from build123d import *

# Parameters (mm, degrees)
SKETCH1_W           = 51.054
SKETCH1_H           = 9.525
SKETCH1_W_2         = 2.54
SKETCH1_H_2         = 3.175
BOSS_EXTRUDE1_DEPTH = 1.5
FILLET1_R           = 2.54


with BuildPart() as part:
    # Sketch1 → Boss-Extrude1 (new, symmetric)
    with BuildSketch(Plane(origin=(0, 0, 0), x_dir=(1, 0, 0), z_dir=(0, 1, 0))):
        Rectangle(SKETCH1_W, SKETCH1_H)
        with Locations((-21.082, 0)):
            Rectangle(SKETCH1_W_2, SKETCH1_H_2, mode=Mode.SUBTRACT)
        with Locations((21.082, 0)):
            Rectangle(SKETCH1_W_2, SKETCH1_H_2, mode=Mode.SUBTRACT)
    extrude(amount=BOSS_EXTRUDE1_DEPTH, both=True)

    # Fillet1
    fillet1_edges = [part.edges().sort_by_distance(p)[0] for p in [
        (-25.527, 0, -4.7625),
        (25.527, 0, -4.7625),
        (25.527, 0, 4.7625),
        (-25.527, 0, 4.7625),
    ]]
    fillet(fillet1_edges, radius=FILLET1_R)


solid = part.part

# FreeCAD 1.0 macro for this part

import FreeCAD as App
import Part
import Sketcher

V = App.Vector
Q = App.Units.Quantity


def edges_at(feature, points):
    """Names of the edges that pass closest to the given points."""
    edges = feature.Shape.Edges
    near = lambda p: min(range(len(edges)), key=lambda i: edges[i].distToShape(Part.Vertex(*p))[0])
    return sorted({f"Edge{near(p) + 1}" for p in points})


def add_polygon(sketch, points):
    """Adds a closed chain of lines whose ends are joined by coincident constraints."""
    first, n = sketch.GeometryCount, len(points)
    for a, b in zip(points, points[1:] + points[:1]):
        sketch.addGeometry(Part.LineSegment(App.Vector(*a, 0), App.Vector(*b, 0)), False)
    for i in range(n):
        sketch.addConstraint(Sketcher.Constraint("Coincident", first + i, 2, first + (i + 1) % n, 1))

doc = App.newDocument("Part")
body = doc.addObject("PartDesign::Body", "Body")

# Sketch on XZ plane
sketch1 = doc.addObject("Sketcher::SketchObject", "Sketch")
body.addObject(sketch1)
sketch1.AttachmentSupport = (doc.XZ_Plane, [""])
sketch1.MapMode = "FlatFace"
add_polygon(sketch1, [(-25.5, -4.8), (-25.5, 4.8), (25.5, 4.8), (25.5, -4.8)])  # lines 0-3
add_polygon(sketch1, [(-19.8, 1.6), (-22.4, 1.6), (-22.4, -1.6), (-19.8, -1.6)])  # lines 4-7
add_polygon(sketch1, [(22.4, 1.6), (19.8, 1.6), (19.8, -1.6), (22.4, -1.6)])  # lines 8-11
sketch1.addConstraint([
    Sketcher.Constraint("Vertical", 0),
    Sketcher.Constraint("Horizontal", 1),
    Sketcher.Constraint("Vertical", 2),
    Sketcher.Constraint("Horizontal", 3),
    Sketcher.Constraint("Horizontal", 4),
    Sketcher.Constraint("Vertical", 5),
    Sketcher.Constraint("Horizontal", 6),
    Sketcher.Constraint("Vertical", 7),
    Sketcher.Constraint("Horizontal", 8),
    Sketcher.Constraint("Vertical", 9),
    Sketcher.Constraint("Horizontal", 10),
    Sketcher.Constraint("Vertical", 11),
    Sketcher.Constraint("Symmetric", 0, 2, 2, 2, -1, 1),
    Sketcher.Constraint("Symmetric", 6, 2, 8, 2, -1, 1),
    Sketcher.Constraint("Symmetric", 4, 2, 10, 2, -1, 1),
    Sketcher.Constraint("Horizontal", 7, 2, 8, 2),
    Sketcher.Constraint("DistanceX", 4, 2, 4, 1, Q("0.1 in")),
    Sketcher.Constraint("DistanceX", 1, 1, 1, 2, Q("2.01 in")),
    Sketcher.Constraint("DistanceY", 0, 1, 0, 2, Q("0.375 in")),
    Sketcher.Constraint("DistanceY", 5, 2, 5, 1, Q("0.125 in")),
    Sketcher.Constraint("DistanceX", 4, 2, -1, 1, Q("0.88 in")),
])
pad1 = doc.addObject("PartDesign::Pad", "Pad")
body.addObject(pad1)
pad1.Profile = sketch1
pad1.Length = 3
pad1.Midplane = True
doc.recompute()

fillet = doc.addObject("PartDesign::Fillet", "Fillet")
body.addObject(fillet)
fillet.Base = (pad1, edges_at(pad1, [
    (-25.527, 0, -4.763),
    (25.527, 0, -4.763),
    (25.527, 0, 4.763),
    (-25.527, 0, 4.763),
]))
fillet.Radius = Q("0.1 in")

doc.recompute()
